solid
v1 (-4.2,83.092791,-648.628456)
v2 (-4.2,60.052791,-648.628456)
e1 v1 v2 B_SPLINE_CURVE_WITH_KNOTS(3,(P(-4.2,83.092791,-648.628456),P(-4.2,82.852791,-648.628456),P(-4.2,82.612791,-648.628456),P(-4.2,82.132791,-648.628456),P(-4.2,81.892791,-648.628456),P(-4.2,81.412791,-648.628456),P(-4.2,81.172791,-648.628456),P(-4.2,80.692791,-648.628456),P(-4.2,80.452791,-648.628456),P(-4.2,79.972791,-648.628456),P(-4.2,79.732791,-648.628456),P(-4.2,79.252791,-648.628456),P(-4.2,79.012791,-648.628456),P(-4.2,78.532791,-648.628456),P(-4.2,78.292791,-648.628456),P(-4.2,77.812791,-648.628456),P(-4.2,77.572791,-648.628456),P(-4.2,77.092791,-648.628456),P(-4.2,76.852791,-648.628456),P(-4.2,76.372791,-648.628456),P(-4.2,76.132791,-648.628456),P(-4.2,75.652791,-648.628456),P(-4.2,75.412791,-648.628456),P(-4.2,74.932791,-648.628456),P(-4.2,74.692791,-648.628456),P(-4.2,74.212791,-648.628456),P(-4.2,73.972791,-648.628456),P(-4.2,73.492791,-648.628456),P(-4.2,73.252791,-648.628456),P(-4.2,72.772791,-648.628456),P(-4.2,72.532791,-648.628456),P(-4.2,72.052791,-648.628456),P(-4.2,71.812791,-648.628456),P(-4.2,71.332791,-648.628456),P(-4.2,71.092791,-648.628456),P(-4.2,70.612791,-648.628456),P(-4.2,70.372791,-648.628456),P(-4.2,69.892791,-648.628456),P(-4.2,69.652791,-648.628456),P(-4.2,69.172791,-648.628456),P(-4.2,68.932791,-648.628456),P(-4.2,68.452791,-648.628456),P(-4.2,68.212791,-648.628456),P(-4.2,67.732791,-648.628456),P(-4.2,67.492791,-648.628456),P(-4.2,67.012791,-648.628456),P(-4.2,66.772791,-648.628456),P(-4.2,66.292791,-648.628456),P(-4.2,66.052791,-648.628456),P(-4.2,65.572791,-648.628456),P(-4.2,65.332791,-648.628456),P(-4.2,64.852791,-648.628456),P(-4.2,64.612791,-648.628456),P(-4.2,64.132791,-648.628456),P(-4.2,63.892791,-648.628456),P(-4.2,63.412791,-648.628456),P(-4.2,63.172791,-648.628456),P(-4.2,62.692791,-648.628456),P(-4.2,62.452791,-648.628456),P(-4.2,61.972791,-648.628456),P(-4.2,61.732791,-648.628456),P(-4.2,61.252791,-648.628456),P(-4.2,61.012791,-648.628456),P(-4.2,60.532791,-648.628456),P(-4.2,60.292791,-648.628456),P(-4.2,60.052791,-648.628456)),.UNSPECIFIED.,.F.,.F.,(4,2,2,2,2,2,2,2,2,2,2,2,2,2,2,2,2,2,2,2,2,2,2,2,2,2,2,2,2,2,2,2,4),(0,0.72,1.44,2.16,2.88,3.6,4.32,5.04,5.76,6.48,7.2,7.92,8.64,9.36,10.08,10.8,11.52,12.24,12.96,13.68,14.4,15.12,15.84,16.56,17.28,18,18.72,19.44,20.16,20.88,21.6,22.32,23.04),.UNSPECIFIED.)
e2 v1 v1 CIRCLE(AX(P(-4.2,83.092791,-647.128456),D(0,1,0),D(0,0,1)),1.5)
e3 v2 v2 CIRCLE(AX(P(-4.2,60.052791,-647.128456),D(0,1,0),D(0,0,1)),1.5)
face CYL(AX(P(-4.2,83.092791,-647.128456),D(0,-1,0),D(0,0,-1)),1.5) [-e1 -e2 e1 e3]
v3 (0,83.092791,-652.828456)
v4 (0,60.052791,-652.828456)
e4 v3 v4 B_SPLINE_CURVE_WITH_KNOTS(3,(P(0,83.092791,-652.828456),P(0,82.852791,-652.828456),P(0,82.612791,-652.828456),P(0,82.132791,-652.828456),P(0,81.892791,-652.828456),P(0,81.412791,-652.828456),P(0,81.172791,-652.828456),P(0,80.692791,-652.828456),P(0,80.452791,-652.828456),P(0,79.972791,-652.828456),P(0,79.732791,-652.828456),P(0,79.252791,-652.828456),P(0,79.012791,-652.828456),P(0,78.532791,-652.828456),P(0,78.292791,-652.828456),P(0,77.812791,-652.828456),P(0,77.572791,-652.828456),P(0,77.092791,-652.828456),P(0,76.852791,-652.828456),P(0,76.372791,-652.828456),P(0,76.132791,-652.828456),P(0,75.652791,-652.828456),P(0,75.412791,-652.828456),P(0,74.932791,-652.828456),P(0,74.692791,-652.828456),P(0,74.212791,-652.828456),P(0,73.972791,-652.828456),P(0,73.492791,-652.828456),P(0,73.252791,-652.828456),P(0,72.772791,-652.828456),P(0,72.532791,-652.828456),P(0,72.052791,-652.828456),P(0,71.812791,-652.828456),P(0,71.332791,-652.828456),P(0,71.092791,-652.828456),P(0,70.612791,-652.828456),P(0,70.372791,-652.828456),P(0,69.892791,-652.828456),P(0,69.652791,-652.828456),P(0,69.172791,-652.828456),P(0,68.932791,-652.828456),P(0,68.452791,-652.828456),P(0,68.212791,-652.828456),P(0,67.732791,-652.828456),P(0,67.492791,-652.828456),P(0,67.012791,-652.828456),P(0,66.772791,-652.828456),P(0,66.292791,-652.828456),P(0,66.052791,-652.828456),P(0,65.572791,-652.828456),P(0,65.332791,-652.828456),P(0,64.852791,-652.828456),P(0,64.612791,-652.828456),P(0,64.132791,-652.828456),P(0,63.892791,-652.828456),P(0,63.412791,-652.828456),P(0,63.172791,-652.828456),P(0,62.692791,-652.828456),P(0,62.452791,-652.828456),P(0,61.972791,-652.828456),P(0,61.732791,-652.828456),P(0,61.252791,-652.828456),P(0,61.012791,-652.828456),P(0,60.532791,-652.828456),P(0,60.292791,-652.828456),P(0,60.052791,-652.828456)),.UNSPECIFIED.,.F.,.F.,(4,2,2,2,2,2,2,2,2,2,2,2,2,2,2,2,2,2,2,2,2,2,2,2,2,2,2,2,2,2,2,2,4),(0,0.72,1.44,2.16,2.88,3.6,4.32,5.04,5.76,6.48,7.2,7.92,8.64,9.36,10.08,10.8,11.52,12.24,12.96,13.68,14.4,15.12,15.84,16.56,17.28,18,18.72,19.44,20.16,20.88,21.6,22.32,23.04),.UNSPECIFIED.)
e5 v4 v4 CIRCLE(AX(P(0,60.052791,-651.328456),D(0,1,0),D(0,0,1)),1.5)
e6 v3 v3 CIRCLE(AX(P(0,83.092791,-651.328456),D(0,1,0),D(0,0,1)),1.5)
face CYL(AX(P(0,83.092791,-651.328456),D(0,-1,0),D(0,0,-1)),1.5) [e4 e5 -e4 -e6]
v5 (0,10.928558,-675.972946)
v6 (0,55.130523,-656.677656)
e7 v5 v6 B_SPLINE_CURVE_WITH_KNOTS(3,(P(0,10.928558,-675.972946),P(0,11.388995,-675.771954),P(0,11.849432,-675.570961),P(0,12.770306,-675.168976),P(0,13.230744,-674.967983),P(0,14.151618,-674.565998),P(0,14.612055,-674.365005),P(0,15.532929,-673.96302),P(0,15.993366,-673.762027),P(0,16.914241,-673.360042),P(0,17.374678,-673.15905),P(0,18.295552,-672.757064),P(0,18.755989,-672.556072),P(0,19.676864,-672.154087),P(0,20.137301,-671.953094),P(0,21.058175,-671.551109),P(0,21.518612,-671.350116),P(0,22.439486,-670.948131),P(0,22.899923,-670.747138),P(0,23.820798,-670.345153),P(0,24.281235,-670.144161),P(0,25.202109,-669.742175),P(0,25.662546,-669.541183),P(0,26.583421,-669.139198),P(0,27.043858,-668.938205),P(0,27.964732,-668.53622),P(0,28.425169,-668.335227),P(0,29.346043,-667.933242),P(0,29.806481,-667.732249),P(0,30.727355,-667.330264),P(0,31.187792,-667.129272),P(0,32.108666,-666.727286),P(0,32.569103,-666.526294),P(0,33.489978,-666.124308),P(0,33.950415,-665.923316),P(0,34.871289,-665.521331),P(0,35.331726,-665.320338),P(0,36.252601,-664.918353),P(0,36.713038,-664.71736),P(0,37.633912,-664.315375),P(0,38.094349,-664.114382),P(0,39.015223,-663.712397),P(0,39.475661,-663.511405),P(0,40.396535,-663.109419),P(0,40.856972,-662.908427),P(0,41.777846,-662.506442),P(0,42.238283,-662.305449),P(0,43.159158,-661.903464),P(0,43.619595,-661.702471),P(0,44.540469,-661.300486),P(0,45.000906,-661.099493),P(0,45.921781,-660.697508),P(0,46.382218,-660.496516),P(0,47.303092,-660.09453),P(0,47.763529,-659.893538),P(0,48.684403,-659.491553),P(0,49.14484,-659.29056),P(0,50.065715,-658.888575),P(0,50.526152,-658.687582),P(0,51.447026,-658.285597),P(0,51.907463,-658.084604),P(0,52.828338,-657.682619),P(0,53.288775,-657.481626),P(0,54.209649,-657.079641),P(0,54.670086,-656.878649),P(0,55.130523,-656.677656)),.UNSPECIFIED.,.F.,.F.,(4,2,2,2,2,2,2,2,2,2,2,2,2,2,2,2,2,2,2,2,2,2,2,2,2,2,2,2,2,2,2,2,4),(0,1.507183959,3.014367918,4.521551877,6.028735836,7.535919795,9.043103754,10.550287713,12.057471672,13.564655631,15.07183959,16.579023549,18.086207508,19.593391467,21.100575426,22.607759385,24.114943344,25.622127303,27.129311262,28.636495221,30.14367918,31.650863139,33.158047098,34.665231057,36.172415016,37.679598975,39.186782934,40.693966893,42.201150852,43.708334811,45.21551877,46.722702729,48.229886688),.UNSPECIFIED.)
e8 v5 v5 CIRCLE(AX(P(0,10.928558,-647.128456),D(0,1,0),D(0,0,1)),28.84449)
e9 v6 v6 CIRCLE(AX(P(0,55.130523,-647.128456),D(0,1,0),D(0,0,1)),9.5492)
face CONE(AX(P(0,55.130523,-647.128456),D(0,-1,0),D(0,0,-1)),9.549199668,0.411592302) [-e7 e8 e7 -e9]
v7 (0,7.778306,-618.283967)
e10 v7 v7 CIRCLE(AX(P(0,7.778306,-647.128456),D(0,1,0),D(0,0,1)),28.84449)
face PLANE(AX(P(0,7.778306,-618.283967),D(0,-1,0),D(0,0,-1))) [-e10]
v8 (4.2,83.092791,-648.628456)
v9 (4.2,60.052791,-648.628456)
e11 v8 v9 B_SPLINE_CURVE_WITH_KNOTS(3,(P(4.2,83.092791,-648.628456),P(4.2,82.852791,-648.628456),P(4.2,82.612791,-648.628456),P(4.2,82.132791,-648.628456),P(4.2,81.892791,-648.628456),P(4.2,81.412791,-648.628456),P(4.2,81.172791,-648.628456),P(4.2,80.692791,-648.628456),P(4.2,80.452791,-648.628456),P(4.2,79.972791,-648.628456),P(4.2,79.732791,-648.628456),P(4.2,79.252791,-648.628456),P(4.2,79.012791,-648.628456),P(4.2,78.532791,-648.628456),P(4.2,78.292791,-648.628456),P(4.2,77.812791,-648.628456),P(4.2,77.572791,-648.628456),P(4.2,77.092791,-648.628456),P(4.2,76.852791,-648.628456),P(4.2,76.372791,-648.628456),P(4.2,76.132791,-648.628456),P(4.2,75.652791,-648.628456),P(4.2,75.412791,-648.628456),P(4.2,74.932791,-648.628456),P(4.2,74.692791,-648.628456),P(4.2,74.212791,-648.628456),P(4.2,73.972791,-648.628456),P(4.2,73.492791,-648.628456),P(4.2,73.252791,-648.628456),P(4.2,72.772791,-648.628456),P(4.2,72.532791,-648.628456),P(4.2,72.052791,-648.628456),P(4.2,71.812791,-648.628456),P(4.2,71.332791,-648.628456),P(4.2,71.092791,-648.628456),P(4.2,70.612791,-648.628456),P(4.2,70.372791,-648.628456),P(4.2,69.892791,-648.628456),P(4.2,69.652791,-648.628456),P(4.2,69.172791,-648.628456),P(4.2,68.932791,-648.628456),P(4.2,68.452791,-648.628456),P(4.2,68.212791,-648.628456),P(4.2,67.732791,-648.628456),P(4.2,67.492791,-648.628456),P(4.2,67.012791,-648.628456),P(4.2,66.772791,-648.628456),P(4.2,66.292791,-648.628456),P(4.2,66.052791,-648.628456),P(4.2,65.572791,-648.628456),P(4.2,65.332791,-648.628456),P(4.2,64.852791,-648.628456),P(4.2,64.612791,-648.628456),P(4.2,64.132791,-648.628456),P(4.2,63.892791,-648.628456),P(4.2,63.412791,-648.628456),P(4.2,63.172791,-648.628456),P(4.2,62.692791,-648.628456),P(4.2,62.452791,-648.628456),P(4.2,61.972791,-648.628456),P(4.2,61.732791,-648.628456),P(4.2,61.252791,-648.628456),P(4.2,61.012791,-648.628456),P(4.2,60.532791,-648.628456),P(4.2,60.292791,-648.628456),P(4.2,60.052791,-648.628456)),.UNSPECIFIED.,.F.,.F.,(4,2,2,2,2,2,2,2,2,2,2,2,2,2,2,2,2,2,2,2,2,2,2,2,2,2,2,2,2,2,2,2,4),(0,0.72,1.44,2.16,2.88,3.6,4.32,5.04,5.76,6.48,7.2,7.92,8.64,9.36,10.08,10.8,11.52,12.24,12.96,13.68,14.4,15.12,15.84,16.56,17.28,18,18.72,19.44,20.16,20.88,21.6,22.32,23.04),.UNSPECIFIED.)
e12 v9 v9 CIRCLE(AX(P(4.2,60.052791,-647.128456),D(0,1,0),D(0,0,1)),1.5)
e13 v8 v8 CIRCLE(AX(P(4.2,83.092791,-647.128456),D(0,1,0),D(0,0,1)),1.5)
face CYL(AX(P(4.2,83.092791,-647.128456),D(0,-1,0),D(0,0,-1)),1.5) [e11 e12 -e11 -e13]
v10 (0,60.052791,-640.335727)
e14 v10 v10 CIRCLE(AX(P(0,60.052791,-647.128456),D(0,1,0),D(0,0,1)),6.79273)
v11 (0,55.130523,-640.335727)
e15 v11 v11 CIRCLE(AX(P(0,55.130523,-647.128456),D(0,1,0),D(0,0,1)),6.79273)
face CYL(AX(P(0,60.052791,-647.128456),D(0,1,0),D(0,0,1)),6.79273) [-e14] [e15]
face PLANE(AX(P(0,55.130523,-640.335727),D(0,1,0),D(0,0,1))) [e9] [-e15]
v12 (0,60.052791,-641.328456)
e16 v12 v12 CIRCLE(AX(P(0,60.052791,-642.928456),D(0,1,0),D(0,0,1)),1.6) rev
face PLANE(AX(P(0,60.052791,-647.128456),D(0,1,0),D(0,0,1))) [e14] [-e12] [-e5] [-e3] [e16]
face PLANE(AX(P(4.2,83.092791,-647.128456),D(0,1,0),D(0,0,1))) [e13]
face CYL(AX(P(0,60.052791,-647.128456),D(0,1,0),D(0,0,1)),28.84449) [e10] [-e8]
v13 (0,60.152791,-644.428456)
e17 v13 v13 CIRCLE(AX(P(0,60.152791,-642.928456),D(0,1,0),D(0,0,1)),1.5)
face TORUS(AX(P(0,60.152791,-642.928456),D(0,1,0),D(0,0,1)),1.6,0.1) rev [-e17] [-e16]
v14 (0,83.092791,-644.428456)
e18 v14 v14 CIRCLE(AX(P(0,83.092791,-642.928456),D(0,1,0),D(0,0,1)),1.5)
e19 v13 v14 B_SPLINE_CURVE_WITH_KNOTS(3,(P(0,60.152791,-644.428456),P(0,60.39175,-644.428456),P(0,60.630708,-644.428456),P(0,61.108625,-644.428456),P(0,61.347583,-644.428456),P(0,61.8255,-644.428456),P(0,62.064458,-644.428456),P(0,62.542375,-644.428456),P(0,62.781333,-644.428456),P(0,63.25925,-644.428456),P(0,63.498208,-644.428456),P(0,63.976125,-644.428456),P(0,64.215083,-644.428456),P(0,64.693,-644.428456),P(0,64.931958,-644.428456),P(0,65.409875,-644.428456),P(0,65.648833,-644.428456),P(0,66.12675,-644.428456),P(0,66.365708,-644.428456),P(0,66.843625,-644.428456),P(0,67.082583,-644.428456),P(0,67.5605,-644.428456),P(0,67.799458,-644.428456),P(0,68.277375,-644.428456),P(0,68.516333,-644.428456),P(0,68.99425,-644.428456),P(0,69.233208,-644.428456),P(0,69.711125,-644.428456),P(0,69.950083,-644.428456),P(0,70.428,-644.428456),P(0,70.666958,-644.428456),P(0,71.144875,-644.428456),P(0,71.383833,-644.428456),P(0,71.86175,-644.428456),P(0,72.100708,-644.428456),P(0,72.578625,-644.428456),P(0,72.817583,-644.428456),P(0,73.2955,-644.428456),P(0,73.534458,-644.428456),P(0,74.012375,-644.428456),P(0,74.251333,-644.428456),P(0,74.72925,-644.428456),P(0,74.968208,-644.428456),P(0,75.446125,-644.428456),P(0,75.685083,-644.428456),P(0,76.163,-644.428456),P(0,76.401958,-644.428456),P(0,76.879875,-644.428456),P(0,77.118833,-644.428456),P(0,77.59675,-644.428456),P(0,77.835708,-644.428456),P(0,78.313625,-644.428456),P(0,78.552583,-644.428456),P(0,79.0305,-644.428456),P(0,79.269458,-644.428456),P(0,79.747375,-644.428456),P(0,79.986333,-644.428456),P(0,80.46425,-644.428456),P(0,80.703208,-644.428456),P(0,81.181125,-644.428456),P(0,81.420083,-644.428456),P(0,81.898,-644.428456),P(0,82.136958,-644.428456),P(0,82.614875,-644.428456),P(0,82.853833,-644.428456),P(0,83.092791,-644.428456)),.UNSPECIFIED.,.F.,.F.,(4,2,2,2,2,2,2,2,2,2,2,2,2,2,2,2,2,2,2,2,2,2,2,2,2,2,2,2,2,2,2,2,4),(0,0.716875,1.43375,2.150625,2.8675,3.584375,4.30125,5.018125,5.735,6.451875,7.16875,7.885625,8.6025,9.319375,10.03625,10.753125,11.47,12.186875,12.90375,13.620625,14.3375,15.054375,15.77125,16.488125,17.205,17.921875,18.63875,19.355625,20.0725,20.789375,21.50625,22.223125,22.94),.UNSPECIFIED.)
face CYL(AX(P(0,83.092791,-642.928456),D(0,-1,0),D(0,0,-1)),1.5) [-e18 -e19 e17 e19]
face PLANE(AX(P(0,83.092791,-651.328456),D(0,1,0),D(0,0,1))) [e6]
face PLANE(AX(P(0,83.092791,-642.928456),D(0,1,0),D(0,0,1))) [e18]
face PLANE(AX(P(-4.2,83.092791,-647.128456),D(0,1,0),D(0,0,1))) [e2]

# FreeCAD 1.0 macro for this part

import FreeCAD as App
import Part
import Sketcher
from FreeCAD import Vector


def edges_at(feature, points):
    """Names of the edges that pass closest to the given points."""
    edges = feature.Shape.Edges
    near = lambda p: min(range(len(edges)), key=lambda i: edges[i].distToShape(Part.Vertex(*p))[0])
    return sorted({f"Edge{near(p) + 1}" for p in points})


def add_polygon(sketch, points):
    """Adds a closed chain of lines whose ends are joined by coincident constraints."""
    first, n = sketch.GeometryCount, len(points)
    for a, b in zip(points, points[1:] + points[:1]):
        sketch.addGeometry(Part.LineSegment(App.Vector(*a, 0), App.Vector(*b, 0)), False)
    for i in range(n):
        sketch.addConstraint(Sketcher.Constraint("Coincident", first + i, 2, first + (i + 1) % n, 1))

doc = App.newDocument("Part")
params = doc.addObject("Spreadsheet::Sheet", "Params")
for row, (alias, value) in enumerate([
    ("revolution_angle", "360 deg"),
    ("sketch2_diameter", "3 mm"),
    ("pad1_length", "23.04 mm"),
    ("fillet_radius", "0.1 mm"),
], start=1):
    params.set(f"A{row}", alias)
    params.set(f"B{row}", "=" + value)
    params.setAlias(f"B{row}", alias)

body = doc.addObject("PartDesign::Body", "Body")

# Sketch on YZ plane
sketch1 = doc.addObject("Sketcher::SketchObject", "Sketch")
body.addObject(sketch1)
sketch1.AttachmentSupport = (doc.YZ_Plane, [""])
sketch1.MapMode = "FlatFace"
add_polygon(sketch1, [(10.9, -618.3), (7.8, -618.3), (7.8, -647.1), (60.1, -647.1), (60.1, -640.3), (55.1, -640.3), (55.1, -637.6)])  # lines 0-6
sketch1.addGeometry(Part.LineSegment(Vector(60.1, -647.1, 0), Vector(7.8, -647.1, 0)), True)  # axis
sketch1.addConstraint(Sketcher.Constraint("Horizontal", 0))
sketch1.addConstraint(Sketcher.Constraint("Vertical", 1))
sketch1.addConstraint(Sketcher.Constraint("Horizontal", 2))
sketch1.addConstraint(Sketcher.Constraint("Vertical", 3))
sketch1.addConstraint(Sketcher.Constraint("Horizontal", 4))
sketch1.addConstraint(Sketcher.Constraint("Vertical", 5))
sketch1.addConstraint(Sketcher.Constraint("Horizontal", 7))
sketch1.addConstraint(Sketcher.Constraint("Coincident", 7, 1, 2, 2))
sketch1.addConstraint(Sketcher.Constraint("Vertical", 0, 2, 7, 2))
sketch1.addConstraint(Sketcher.Constraint("DistanceX", 0, 2, 0, 1, 3.150251))
sketch1.addConstraint(Sketcher.Constraint("DistanceY", 1, 2, 1, 1, 28.84449))
sketch1.addConstraint(Sketcher.Constraint("DistanceY", 3, 1, 3, 2, 6.79273))
sketch1.addConstraint(Sketcher.Constraint("DistanceY", 5, 1, 5, 2, 2.75647))
sketch1.addConstraint(Sketcher.Constraint("DistanceX", 2, 1, 2, 2, 52.274485))
sketch1.addConstraint(Sketcher.Constraint("DistanceX", 4, 2, 4, 1, 4.922268))
sketch1.addConstraint(Sketcher.Constraint("DistanceX", -1, 1, 2, 2, 60.052791))
sketch1.addConstraint(Sketcher.Constraint("DistanceY", 0, 2, -1, 1, 618.283967))
revolution = doc.addObject("PartDesign::Revolution", "Revolution")
body.addObject(revolution)
revolution.Profile = sketch1
revolution.ReferenceAxis = (sketch1, ["Axis0"])
revolution.setExpression("Angle", "Params.revolution_angle")

# Sketch on XZ plane
sketch2 = doc.addObject("Sketcher::SketchObject", "Sketch001")
body.addObject(sketch2)
sketch2.AttachmentSupport = (doc.XZ_Plane, [""])
sketch2.MapMode = "FlatFace"
sketch2.AttachmentOffset = App.Placement(Vector(0, 0, -60.052791), App.Rotation())
sketch2.addGeometry(Part.Circle(Vector(0, -651.3, 0), Vector(0, 0, 1), 1.5), False)
sketch2.addGeometry(Part.Circle(Vector(-4.2, -647.1, 0), Vector(0, 0, 1), 1.5), False)
sketch2.addGeometry(Part.Circle(Vector(0, -642.9, 0), Vector(0, 0, 1), 1.5), False)
sketch2.addGeometry(Part.Circle(Vector(4.2, -647.1, 0), Vector(0, 0, 1), 1.5), False)
sketch2.addConstraint(Sketcher.Constraint("Equal", 0, 1))
sketch2.addConstraint(Sketcher.Constraint("Equal", 1, 2))
sketch2.addConstraint(Sketcher.Constraint("Equal", 2, 3))
sketch2.addConstraint(Sketcher.Constraint("Symmetric", 1, 3, 3, 3, -2))
sketch2.addConstraint(Sketcher.Constraint("PointOnObject", 0, 3, -2))
sketch2.addConstraint(Sketcher.Constraint("PointOnObject", 2, 3, -2))
sketch2.addConstraint(Sketcher.Constraint("Diameter", 0, 3.0))
sketch2.addConstraint(Sketcher.Constraint("DistanceX", 1, 3, -1, 1, 4.2))
sketch2.addConstraint(Sketcher.Constraint("DistanceY", 0, 3, 1, 3, 4.2))
sketch2.addConstraint(Sketcher.Constraint("DistanceY", 1, 3, 2, 3, 4.2))
sketch2.addConstraint(Sketcher.Constraint("DistanceY", 0, 3, -1, 1, 651.328456))
sketch2.setExpression("Constraints[6]", "Params.sketch2_diameter")
pad1 = doc.addObject("PartDesign::Pad", "Pad")
body.addObject(pad1)
pad1.Profile = sketch2
pad1.setExpression("Length", "Params.pad1_length")
pad1.Reversed = True
doc.recompute()

fillet = doc.addObject("PartDesign::Fillet", "Fillet")
body.addObject(fillet)
fillet.Base = (pad1, edges_at(pad1, [(0, 60.053, -641.428)]))
fillet.setExpression("Radius", "Params.fillet_radius")

doc.recompute()
